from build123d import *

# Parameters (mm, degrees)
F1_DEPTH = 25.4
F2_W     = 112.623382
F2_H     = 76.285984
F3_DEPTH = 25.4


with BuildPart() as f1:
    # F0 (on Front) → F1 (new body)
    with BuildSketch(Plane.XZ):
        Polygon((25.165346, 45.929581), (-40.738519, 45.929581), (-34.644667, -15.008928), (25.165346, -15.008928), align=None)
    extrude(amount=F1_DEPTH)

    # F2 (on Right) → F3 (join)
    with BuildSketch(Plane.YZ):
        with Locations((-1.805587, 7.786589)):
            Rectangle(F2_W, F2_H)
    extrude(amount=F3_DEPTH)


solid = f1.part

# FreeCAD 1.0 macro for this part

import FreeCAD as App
import Part
import Sketcher
Q = App.Units.Quantity

doc = App.newDocument("Part")
body = doc.addObject("PartDesign::Body", "Body")

# Sketch on XZ plane
sketch1 = doc.addObject("Sketcher::SketchObject", "Sketch")
body.addObject(sketch1)
sketch1.AttachmentSupport = (doc.XZ_Plane, [""])
sketch1.MapMode = "FlatFace"
sketch1.addGeometry([
    Part.LineSegment(App.Vector(25.165346, 45.929581, 0), App.Vector(-40.738519, 45.929581, 0)),
    Part.LineSegment(App.Vector(-40.738519, 45.929581, 0), App.Vector(-34.644667, -15.008928, 0)),
    Part.LineSegment(App.Vector(-34.644667, -15.008928, 0), App.Vector(25.165346, -15.008928, 0)),
    Part.LineSegment(App.Vector(25.165346, -15.008928, 0), App.Vector(25.165346, 45.929581, 0)),
], False)
sketch1.addConstraint([
    Sketcher.Constraint("Coincident", 0, 2, 1, 1),
    Sketcher.Constraint("Coincident", 1, 2, 2, 1),
    Sketcher.Constraint("Coincident", 2, 2, 3, 1),
    Sketcher.Constraint("Coincident", 3, 2, 0, 1),
    Sketcher.Constraint("Horizontal", 0),
    Sketcher.Constraint("Horizontal", 2),
    Sketcher.Constraint("Vertical", 3),
    Sketcher.Constraint("DistanceY", 3, 1, 3, 2, Q("60.938509 mm")),
    Sketcher.Constraint("DistanceX", 0, 2, 0, 1, Q("65.903865 mm")),
    Sketcher.Constraint("DistanceX", 2, 1, 2, 2, Q("59.810013 mm")),
    Sketcher.Constraint("DistanceX", 0, 2, -1, 1, Q("40.738519 mm")),
    Sketcher.Constraint("DistanceY", -1, 1, 0, 2, Q("45.929581 mm")),
])
pad1 = doc.addObject("PartDesign::Pad", "Pad")
body.addObject(pad1)
pad1.Profile = sketch1
pad1.Length = Q("1 in")

# Sketch on YZ plane
sketch2 = doc.addObject("Sketcher::SketchObject", "Sketch001")
body.addObject(sketch2)
sketch2.AttachmentSupport = (doc.YZ_Plane, [""])
sketch2.MapMode = "FlatFace"
sketch2.addGeometry([
    Part.LineSegment(App.Vector(-58.117278, 45.929581, 0), App.Vector(-58.117278, -30.356403, 0)),
    Part.LineSegment(App.Vector(-58.117278, -30.356403, 0), App.Vector(54.506104, -30.356403, 0)),
    Part.LineSegment(App.Vector(54.506104, -30.356403, 0), App.Vector(54.506104, 45.929581, 0)),
    Part.LineSegment(App.Vector(54.506104, 45.929581, 0), App.Vector(-58.117278, 45.929581, 0)),
], False)
sketch2.addConstraint([
    Sketcher.Constraint("Coincident", 0, 2, 1, 1),
    Sketcher.Constraint("Coincident", 1, 2, 2, 1),
    Sketcher.Constraint("Coincident", 2, 2, 3, 1),
    Sketcher.Constraint("Coincident", 3, 2, 0, 1),
    Sketcher.Constraint("Vertical", 0),
    Sketcher.Constraint("Horizontal", 1),
    Sketcher.Constraint("Vertical", 2),
    Sketcher.Constraint("Horizontal", 3),
    Sketcher.Constraint("DistanceX", 1, 1, 1, 2, Q("112.623382 mm")),
    Sketcher.Constraint("DistanceY", 0, 2, 0, 1, Q("76.285984 mm")),
    Sketcher.Constraint("DistanceY", -1, 1, 2, 2, Q("45.929581 mm")),
    Sketcher.Constraint("DistanceX", 0, 2, -1, 1, Q("58.117278 mm")),
])
pad2 = doc.addObject("PartDesign::Pad", "Pad001")
body.addObject(pad2)
pad2.Profile = sketch2
pad2.Length = Q("1 in")

doc.recompute()
